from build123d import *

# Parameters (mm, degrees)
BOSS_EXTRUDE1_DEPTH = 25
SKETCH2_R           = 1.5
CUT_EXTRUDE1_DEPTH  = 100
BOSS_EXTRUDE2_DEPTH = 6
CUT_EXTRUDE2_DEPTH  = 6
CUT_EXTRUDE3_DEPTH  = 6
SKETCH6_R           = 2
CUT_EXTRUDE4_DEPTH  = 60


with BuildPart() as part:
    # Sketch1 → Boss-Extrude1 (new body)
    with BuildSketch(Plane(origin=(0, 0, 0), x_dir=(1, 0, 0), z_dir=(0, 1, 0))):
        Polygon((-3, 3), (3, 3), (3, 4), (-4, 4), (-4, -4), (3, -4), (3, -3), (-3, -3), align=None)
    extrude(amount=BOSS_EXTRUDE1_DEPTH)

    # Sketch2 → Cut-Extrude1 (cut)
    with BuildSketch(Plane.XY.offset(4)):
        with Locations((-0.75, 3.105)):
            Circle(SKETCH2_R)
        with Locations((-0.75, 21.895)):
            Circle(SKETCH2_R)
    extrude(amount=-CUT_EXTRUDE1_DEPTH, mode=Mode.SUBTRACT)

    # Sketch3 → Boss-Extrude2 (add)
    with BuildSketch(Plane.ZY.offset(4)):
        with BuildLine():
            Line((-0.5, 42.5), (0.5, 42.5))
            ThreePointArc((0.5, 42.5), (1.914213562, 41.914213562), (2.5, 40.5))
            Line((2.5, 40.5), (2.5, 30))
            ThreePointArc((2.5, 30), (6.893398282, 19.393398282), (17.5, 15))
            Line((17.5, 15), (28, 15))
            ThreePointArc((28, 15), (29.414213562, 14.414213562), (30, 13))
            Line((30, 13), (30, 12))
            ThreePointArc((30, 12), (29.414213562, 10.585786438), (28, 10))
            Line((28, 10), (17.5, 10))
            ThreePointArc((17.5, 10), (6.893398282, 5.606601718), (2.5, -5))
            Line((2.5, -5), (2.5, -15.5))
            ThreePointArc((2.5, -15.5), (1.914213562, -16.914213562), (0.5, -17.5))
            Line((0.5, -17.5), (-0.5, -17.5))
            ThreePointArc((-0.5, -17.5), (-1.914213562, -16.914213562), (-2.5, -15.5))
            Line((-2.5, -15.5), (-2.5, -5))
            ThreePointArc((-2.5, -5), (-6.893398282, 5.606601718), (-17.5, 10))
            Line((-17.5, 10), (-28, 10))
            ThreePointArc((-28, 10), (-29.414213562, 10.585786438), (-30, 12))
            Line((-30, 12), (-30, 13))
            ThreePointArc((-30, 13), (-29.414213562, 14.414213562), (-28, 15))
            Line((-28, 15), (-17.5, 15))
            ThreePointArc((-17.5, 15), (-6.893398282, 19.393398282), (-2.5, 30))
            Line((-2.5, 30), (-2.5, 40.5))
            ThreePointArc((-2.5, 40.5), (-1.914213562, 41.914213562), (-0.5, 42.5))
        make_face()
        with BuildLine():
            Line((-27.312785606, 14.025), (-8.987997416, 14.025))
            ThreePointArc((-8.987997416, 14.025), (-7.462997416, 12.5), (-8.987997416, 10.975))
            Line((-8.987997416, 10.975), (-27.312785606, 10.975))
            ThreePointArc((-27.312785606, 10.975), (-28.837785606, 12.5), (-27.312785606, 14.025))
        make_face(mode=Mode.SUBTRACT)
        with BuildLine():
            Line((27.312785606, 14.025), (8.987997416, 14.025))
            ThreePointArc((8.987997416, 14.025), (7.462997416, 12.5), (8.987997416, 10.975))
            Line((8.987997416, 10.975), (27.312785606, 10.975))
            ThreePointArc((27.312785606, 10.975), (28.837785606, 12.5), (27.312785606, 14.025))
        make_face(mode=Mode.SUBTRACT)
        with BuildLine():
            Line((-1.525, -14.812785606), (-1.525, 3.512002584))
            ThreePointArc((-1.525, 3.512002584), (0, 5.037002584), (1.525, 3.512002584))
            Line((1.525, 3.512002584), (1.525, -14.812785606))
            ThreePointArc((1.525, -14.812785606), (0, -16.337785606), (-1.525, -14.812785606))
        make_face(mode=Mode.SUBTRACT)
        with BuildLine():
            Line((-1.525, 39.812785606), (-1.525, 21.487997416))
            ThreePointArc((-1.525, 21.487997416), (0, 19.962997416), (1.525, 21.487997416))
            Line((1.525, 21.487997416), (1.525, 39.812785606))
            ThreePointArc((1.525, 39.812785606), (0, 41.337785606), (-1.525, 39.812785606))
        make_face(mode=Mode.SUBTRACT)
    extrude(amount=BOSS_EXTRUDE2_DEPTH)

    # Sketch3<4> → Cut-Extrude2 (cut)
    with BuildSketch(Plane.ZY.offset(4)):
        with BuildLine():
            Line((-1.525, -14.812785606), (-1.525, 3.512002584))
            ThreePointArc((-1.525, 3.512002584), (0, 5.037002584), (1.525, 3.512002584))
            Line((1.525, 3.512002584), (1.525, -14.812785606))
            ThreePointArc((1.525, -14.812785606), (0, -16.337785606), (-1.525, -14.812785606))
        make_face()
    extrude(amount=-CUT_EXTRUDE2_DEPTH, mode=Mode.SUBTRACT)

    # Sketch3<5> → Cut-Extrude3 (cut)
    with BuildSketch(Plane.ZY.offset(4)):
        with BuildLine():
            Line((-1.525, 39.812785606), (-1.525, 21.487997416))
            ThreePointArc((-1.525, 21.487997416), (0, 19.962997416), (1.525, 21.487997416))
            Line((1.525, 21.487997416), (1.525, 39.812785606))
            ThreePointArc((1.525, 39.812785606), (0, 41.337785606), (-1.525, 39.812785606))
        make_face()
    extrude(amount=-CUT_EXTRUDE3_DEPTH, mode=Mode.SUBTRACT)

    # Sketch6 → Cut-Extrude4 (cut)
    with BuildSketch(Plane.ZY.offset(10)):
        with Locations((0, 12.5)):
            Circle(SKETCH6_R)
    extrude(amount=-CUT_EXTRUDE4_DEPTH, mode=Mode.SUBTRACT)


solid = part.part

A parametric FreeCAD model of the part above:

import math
import FreeCAD as App
import Part
import Sketcher
Q = App.Units.Quantity


def add_polygon(sketch, points):
    """Adds a closed chain of lines whose ends are joined by coincident constraints."""
    first, n = sketch.GeometryCount, len(points)
    for a, b in zip(points, points[1:] + points[:1]):
        sketch.addGeometry(Part.LineSegment(App.Vector(*a, 0), App.Vector(*b, 0)), False)
    for i in range(n):
        sketch.addConstraint(Sketcher.Constraint("Coincident", first + i, 2, first + (i + 1) % n, 1))

doc = App.newDocument("Part")
params = doc.addObject("Spreadsheet::Sheet", "Params")
for row, (alias, value) in enumerate([
    ("sketch1_width", "6 mm"),
    ("sketch1_width2", "7 mm"),
    ("sketch1_height", "1 mm"),
    ("pad1_length", "25 mm"),
    ("sketch2_diameter", "3 mm"),
    ("pocket1_length", "100 mm"),
    ("sketch3_radius", "2 mm"),
    ("sketch3_radius2", "15 mm"),
    ("sketch3_width", "1 mm"),
    ("sketch3_width2", "10.5 mm"),
    ("pad2_length", "6 mm"),
    ("pocket2_length", "6 mm"),
    ("pocket3_length", "6 mm"),
    ("sketch6_diameter", "4 mm"),
    ("pocket4_length", "60 mm"),
], start=1):
    params.set(f"A{row}", alias)
    params.set(f"B{row}", "=" + value)
    params.setAlias(f"B{row}", alias)

body = doc.addObject("PartDesign::Body", "Body")

# Sketch on XZ plane
sketch1 = body.newObject("Sketcher::SketchObject", "Sketch")
sketch1.AttachmentSupport = (doc.getObject("XZ_Plane"), [""])
sketch1.MapMode = "FlatFace"
add_polygon(sketch1, [(-3, -3), (3, -3), (3, -4), (-4, -4), (-4, 4), (3, 4), (3, 3), (-3, 3)])  # lines 0-7
sketch1.addConstraint(Sketcher.Constraint("Horizontal", 0))
sketch1.addConstraint(Sketcher.Constraint("Vertical", 1))
sketch1.addConstraint(Sketcher.Constraint("Horizontal", 2))
sketch1.addConstraint(Sketcher.Constraint("Vertical", 3))
sketch1.addConstraint(Sketcher.Constraint("Horizontal", 4))
sketch1.addConstraint(Sketcher.Constraint("Vertical", 5))
sketch1.addConstraint(Sketcher.Constraint("Horizontal", 6))
sketch1.addConstraint(Sketcher.Constraint("Vertical", 7))
sketch1.addConstraint(Sketcher.Constraint("Symmetric", 0, 2, 6, 2, -1, 1))
sketch1.addConstraint(Sketcher.Constraint("Symmetric", 1, 2, 4, 2, -1))
sketch1.addConstraint(Sketcher.Constraint("Equal", 6, 7))
sketch1.addConstraint(Sketcher.Constraint("DistanceX", 0, 1, 0, 2, Q("6 mm")))
sketch1.addConstraint(Sketcher.Constraint("DistanceX", 2, 2, 2, 1, Q("7 mm")))
sketch1.addConstraint(Sketcher.Constraint("DistanceY", 1, 2, 1, 1, Q("1 mm")))
sketch1.setExpression("Constraints[19]", "Params.sketch1_width")
sketch1.setExpression("Constraints[20]", "Params.sketch1_width2")
sketch1.setExpression("Constraints[21]", "Params.sketch1_height")
pad1 = body.newObject("PartDesign::Pad", "Pad")
pad1.Profile = sketch1
pad1.setExpression("Length", "Params.pad1_length")
pad1.Reversed = True

# Sketch on XY plane
sketch2 = body.newObject("Sketcher::SketchObject", "Sketch001")
sketch2.AttachmentSupport = (doc.getObject("XY_Plane"), [""])
sketch2.MapMode = "FlatFace"
sketch2.AttachmentOffset = App.Placement(App.Vector(0, 0, 4), App.Rotation())
sketch2.addGeometry(Part.Circle(App.Vector(-0.8, 3.1, 0), App.Vector(0, 0, 1), 1.5), False)
sketch2.addGeometry(Part.Circle(App.Vector(-0.8, 21.9, 0), App.Vector(0, 0, 1), 1.5), False)
sketch2.addConstraint(Sketcher.Constraint("Equal", 0, 1))
sketch2.addConstraint(Sketcher.Constraint("Vertical", 0, 3, 1, 3))
sketch2.addConstraint(Sketcher.Constraint("Diameter", 0, Q("3 mm")))
sketch2.addConstraint(Sketcher.Constraint("DistanceX", 0, 3, -1, 1, Q("0.75 mm")))
sketch2.addConstraint(Sketcher.Constraint("DistanceY", 0, 3, 1, 3, Q("18.79 mm")))
sketch2.addConstraint(Sketcher.Constraint("DistanceY", -1, 1, 0, 3, Q("3.105 mm")))
sketch2.setExpression("Constraints[2]", "Params.sketch2_diameter")
pocket1 = body.newObject("PartDesign::Pocket", "Pocket")
pocket1.Profile = sketch2
pocket1.setExpression("Length", "Params.pocket1_length")

# Sketch on YZ plane
sketch3 = body.newObject("Sketcher::SketchObject", "Sketch002")
sketch3.AttachmentSupport = (doc.getObject("YZ_Plane"), [""])
sketch3.MapMode = "FlatFace"
sketch3.AttachmentOffset = App.Placement(App.Vector(0, 0, -4), App.Rotation())
sketch3.addGeometry(Part.LineSegment(App.Vector(42.5, 0.5, 0), App.Vector(42.5, -0.5, 0)), False)
sketch3.addGeometry(Part.ArcOfCircle(Part.Circle(App.Vector(40.5, -0.5, 0), App.Vector(0, 0, 1), 2), math.radians(-90), math.radians(0)), False)
sketch3.addGeometry(Part.LineSegment(App.Vector(40.5, -2.5, 0), App.Vector(30, -2.5, 0)), False)
sketch3.addGeometry(Part.ArcOfCircle(Part.Circle(App.Vector(30, -17.5, 0), App.Vector(0, 0, 1), 15), math.radians(90), math.radians(180)), False)
sketch3.addGeometry(Part.LineSegment(App.Vector(15, -17.5, 0), App.Vector(15, -28, 0)), False)
sketch3.addGeometry(Part.ArcOfCircle(Part.Circle(App.Vector(13, -28, 0), App.Vector(0, 0, 1), 2), math.radians(-90), math.radians(0)), False)
sketch3.addGeometry(Part.LineSegment(App.Vector(13, -30, 0), App.Vector(12, -30, 0)), False)
sketch3.addGeometry(Part.ArcOfCircle(Part.Circle(App.Vector(12, -28, 0), App.Vector(0, 0, 1), 2), math.radians(-180), math.radians(-90)), False)
sketch3.addGeometry(Part.LineSegment(App.Vector(10, -28, 0), App.Vector(10, -17.5, 0)), False)
sketch3.addGeometry(Part.ArcOfCircle(Part.Circle(App.Vector(-5, -17.5, 0), App.Vector(0, 0, 1), 15), math.radians(0), math.radians(90)), False)
sketch3.addGeometry(Part.LineSegment(App.Vector(-5, -2.5, 0), App.Vector(-15.5, -2.5, 0)), False)
sketch3.addGeometry(Part.ArcOfCircle(Part.Circle(App.Vector(-15.5, -0.5, 0), App.Vector(0, 0, 1), 2), math.radians(-180), math.radians(-90)), False)
sketch3.addGeometry(Part.LineSegment(App.Vector(-17.5, -0.5, 0), App.Vector(-17.5, 0.5, 0)), False)
sketch3.addGeometry(Part.ArcOfCircle(Part.Circle(App.Vector(-15.5, 0.5, 0), App.Vector(0, 0, 1), 2), math.radians(90), math.radians(180)), False)
sketch3.addGeometry(Part.LineSegment(App.Vector(-15.5, 2.5, 0), App.Vector(-5, 2.5, 0)), False)
sketch3.addGeometry(Part.ArcOfCircle(Part.Circle(App.Vector(-5, 17.5, 0), App.Vector(0, 0, 1), 15), math.radians(-90), math.radians(0)), False)
sketch3.addGeometry(Part.LineSegment(App.Vector(10, 17.5, 0), App.Vector(10, 28, 0)), False)
sketch3.addGeometry(Part.ArcOfCircle(Part.Circle(App.Vector(12, 28, 0), App.Vector(0, 0, 1), 2), math.radians(90), math.radians(180)), False)
sketch3.addGeometry(Part.LineSegment(App.Vector(12, 30, 0), App.Vector(13, 30, 0)), False)
sketch3.addGeometry(Part.ArcOfCircle(Part.Circle(App.Vector(13, 28, 0), App.Vector(0, 0, 1), 2), math.radians(0), math.radians(90)), False)
sketch3.addGeometry(Part.LineSegment(App.Vector(15, 28, 0), App.Vector(15, 17.5, 0)), False)
sketch3.addGeometry(Part.ArcOfCircle(Part.Circle(App.Vector(30, 17.5, 0), App.Vector(0, 0, 1), 15), math.radians(180), math.radians(270)), False)
sketch3.addGeometry(Part.LineSegment(App.Vector(30, 2.5, 0), App.Vector(40.5, 2.5, 0)), False)
sketch3.addGeometry(Part.ArcOfCircle(Part.Circle(App.Vector(40.5, 0.5, 0), App.Vector(0, 0, 1), 2), math.radians(0), math.radians(90)), False)
sketch3.addGeometry(Part.LineSegment(App.Vector(-14.8, -1.5, 0), App.Vector(3.5, -1.5, 0)), False)
sketch3.addGeometry(Part.ArcOfCircle(Part.Circle(App.Vector(3.5, 0, 0), App.Vector(0, 0, 1), 1.5), math.radians(-90), math.radians(90)), False)
sketch3.addGeometry(Part.LineSegment(App.Vector(3.5, 1.5, 0), App.Vector(-14.8, 1.5, 0)), False)
sketch3.addGeometry(Part.ArcOfCircle(Part.Circle(App.Vector(-14.8, 0, 0), App.Vector(0, 0, 1), 1.5), math.radians(90), math.radians(270)), False)
sketch3.addGeometry(Part.ArcOfCircle(Part.Circle(App.Vector(12.5, 27.3, 0), App.Vector(0, 0, 1), 1.5), math.radians(0), math.radians(180)), False)
sketch3.addGeometry(Part.LineSegment(App.Vector(11, 27.3, 0), App.Vector(11, 9, 0)), False)
sketch3.addGeometry(Part.ArcOfCircle(Part.Circle(App.Vector(12.5, 9, 0), App.Vector(0, 0, 1), 1.5), math.radians(180), math.radians(360)), False)
sketch3.addGeometry(Part.LineSegment(App.Vector(14, 9, 0), App.Vector(14, 27.3, 0)), False)
sketch3.addGeometry(Part.LineSegment(App.Vector(14, -27.3, 0), App.Vector(14, -9, 0)), False)
sketch3.addGeometry(Part.ArcOfCircle(Part.Circle(App.Vector(12.5, -9, 0), App.Vector(0, 0, 1), 1.5), math.radians(0), math.radians(180)), False)
sketch3.addGeometry(Part.LineSegment(App.Vector(11, -9, 0), App.Vector(11, -27.3, 0)), False)
sketch3.addGeometry(Part.ArcOfCircle(Part.Circle(App.Vector(12.5, -27.3, 0), App.Vector(0, 0, 1), 1.5), math.radians(180), math.radians(360)), False)
sketch3.addGeometry(Part.ArcOfCircle(Part.Circle(App.Vector(39.8, 0, 0), App.Vector(0, 0, 1), 1.5), math.radians(-90), math.radians(90)), False)
sketch3.addGeometry(Part.LineSegment(App.Vector(39.8, 1.5, 0), App.Vector(21.5, 1.5, 0)), False)
sketch3.addGeometry(Part.ArcOfCircle(Part.Circle(App.Vector(21.5, 0, 0), App.Vector(0, 0, 1), 1.5), math.radians(90), math.radians(270)), False)
sketch3.addGeometry(Part.LineSegment(App.Vector(21.5, -1.5, 0), App.Vector(39.8, -1.5, 0)), False)
sketch3.addConstraint(Sketcher.Constraint("Tangent", 0, 2, 1, 2))
sketch3.addConstraint(Sketcher.Constraint("Tangent", 1, 1, 2, 1))
sketch3.addConstraint(Sketcher.Constraint("Tangent", 2, 2, 3, 1))
sketch3.addConstraint(Sketcher.Constraint("Tangent", 3, 2, 4, 1))
sketch3.addConstraint(Sketcher.Constraint("Tangent", 4, 2, 5, 2))
sketch3.addConstraint(Sketcher.Constraint("Tangent", 5, 1, 6, 1))
sketch3.addConstraint(Sketcher.Constraint("Tangent", 6, 2, 7, 2))
sketch3.addConstraint(Sketcher.Constraint("Tangent", 7, 1, 8, 1))
sketch3.addConstraint(Sketcher.Constraint("Tangent", 8, 2, 9, 1))
sketch3.addConstraint(Sketcher.Constraint("Tangent", 9, 2, 10, 1))
sketch3.addConstraint(Sketcher.Constraint("Tangent", 10, 2, 11, 2))
sketch3.addConstraint(Sketcher.Constraint("Tangent", 11, 1, 12, 1))
sketch3.addConstraint(Sketcher.Constraint("Tangent", 12, 2, 13, 2))
sketch3.addConstraint(Sketcher.Constraint("Tangent", 13, 1, 14, 1))
sketch3.addConstraint(Sketcher.Constraint("Tangent", 14, 2, 15, 1))
sketch3.addConstraint(Sketcher.Constraint("Tangent", 15, 2, 16, 1))
sketch3.addConstraint(Sketcher.Constraint("Tangent", 16, 2, 17, 2))
sketch3.addConstraint(Sketcher.Constraint("Tangent", 17, 1, 18, 1))
sketch3.addConstraint(Sketcher.Constraint("Tangent", 18, 2, 19, 2))
sketch3.addConstraint(Sketcher.Constraint("Tangent", 19, 1, 20, 1))
sketch3.addConstraint(Sketcher.Constraint("Tangent", 20, 2, 21, 1))
sketch3.addConstraint(Sketcher.Constraint("Tangent", 21, 2, 22, 1))
sketch3.addConstraint(Sketcher.Constraint("Tangent", 22, 2, 23, 2))
sketch3.addConstraint(Sketcher.Constraint("Tangent", 23, 1, 0, 1))
sketch3.addConstraint(Sketcher.Constraint("Tangent", 24, 2, 25, 1))
sketch3.addConstraint(Sketcher.Constraint("Tangent", 25, 2, 26, 1))
sketch3.addConstraint(Sketcher.Constraint("Tangent", 26, 2, 27, 1))
sketch3.addConstraint(Sketcher.Constraint("Tangent", 27, 2, 24, 1))
sketch3.addConstraint(Sketcher.Constraint("Tangent", 28, 2, 29, 1))
sketch3.addConstraint(Sketcher.Constraint("Tangent", 29, 2, 30, 1))
sketch3.addConstraint(Sketcher.Constraint("Tangent", 30, 2, 31, 1))
sketch3.addConstraint(Sketcher.Constraint("Tangent", 31, 2, 28, 1))
sketch3.addConstraint(Sketcher.Constraint("Tangent", 32, 2, 33, 1))
sketch3.addConstraint(Sketcher.Constraint("Tangent", 33, 2, 34, 1))
sketch3.addConstraint(Sketcher.Constraint("Tangent", 34, 2, 35, 1))
sketch3.addConstraint(Sketcher.Constraint("Tangent", 35, 2, 32, 1))
sketch3.addConstraint(Sketcher.Constraint("Tangent", 36, 2, 37, 1))
sketch3.addConstraint(Sketcher.Constraint("Tangent", 37, 2, 38, 1))
sketch3.addConstraint(Sketcher.Constraint("Tangent", 38, 2, 39, 1))
sketch3.addConstraint(Sketcher.Constraint("Tangent", 39, 2, 36, 1))
sketch3.addConstraint(Sketcher.Constraint("Vertical", 0))
sketch3.addConstraint(Sketcher.Constraint("Horizontal", 2))
sketch3.addConstraint(Sketcher.Constraint("Vertical", 4))
sketch3.addConstraint(Sketcher.Constraint("Horizontal", 6))
sketch3.addConstraint(Sketcher.Constraint("Vertical", 8))
sketch3.addConstraint(Sketcher.Constraint("Horizontal", 10))
sketch3.addConstraint(Sketcher.Constraint("Vertical", 12))
sketch3.addConstraint(Sketcher.Constraint("Horizontal", 14))
sketch3.addConstraint(Sketcher.Constraint("Vertical", 16))
sketch3.addConstraint(Sketcher.Constraint("Horizontal", 18))
sketch3.addConstraint(Sketcher.Constraint("Vertical", 20))
sketch3.addConstraint(Sketcher.Constraint("Horizontal", 22))
sketch3.addConstraint(Sketcher.Constraint("Horizontal", 24))
sketch3.addConstraint(Sketcher.Constraint("Horizontal", 26))
sketch3.addConstraint(Sketcher.Constraint("Vertical", 29))
sketch3.addConstraint(Sketcher.Constraint("Vertical", 31))
sketch3.addConstraint(Sketcher.Constraint("Vertical", 32))
sketch3.addConstraint(Sketcher.Constraint("Vertical", 34))
sketch3.addConstraint(Sketcher.Constraint("Horizontal", 37))
sketch3.addConstraint(Sketcher.Constraint("Horizontal", 39))
sketch3.addConstraint(Sketcher.Constraint("Equal", 1, 5))
sketch3.addConstraint(Sketcher.Constraint("Equal", 5, 7))
sketch3.addConstraint(Sketcher.Constraint("Equal", 3, 9))
sketch3.addConstraint(Sketcher.Constraint("Equal", 7, 11))
sketch3.addConstraint(Sketcher.Constraint("Equal", 11, 13))
sketch3.addConstraint(Sketcher.Constraint("Equal", 9, 15))
sketch3.addConstraint(Sketcher.Constraint("Equal", 13, 17))
sketch3.addConstraint(Sketcher.Constraint("Equal", 17, 19))
sketch3.addConstraint(Sketcher.Constraint("Equal", 15, 21))
sketch3.addConstraint(Sketcher.Constraint("Equal", 19, 23))
sketch3.addConstraint(Sketcher.Constraint("Equal", 27, 28))
sketch3.addConstraint(Sketcher.Constraint("Equal", 30, 33))
sketch3.addConstraint(Sketcher.Constraint("Equal", 35, 36))
sketch3.addConstraint(Sketcher.Constraint("Symmetric", 9, 3, 15, 3, -1))
sketch3.addConstraint(Sketcher.Constraint("Symmetric", 5, 3, 19, 3, -1))
sketch3.addConstraint(Sketcher.Constraint("Symmetric", 30, 3, 33, 3, -1))
sketch3.addConstraint(Sketcher.Constraint("PointOnObject", 25, 3, -1))
sketch3.addConstraint(Sketcher.Constraint("PointOnObject", 36, 3, -1))
sketch3.addConstraint(Sketcher.Constraint("Horizontal", 3, 3, 9, 3))
sketch3.addConstraint(Sketcher.Constraint("Horizontal", 15, 3, 21, 3))
sketch3.addConstraint(Sketcher.Constraint("Equal", 2, 10))
sketch3.addConstraint(Sketcher.Constraint("Equal", 26, 37))
sketch3.addConstraint(Sketcher.Constraint("Equal", 18, 0))
sketch3.addConstraint(Sketcher.Constraint("Equal", 22, 4))
sketch3.addConstraint(Sketcher.Constraint("Equal", 39, 29))
sketch3.addConstraint(Sketcher.Constraint("Equal", 31, 32))
sketch3.addConstraint(Sketcher.Constraint("Radius", 1, Q("2 mm")))
sketch3.addConstraint(Sketcher.Constraint("Radius", 3, Q("15 mm")))
sketch3.addConstraint(Sketcher.Constraint("DistanceX", 6, 2, 6, 1, Q("1 mm")))
sketch3.addConstraint(Sketcher.Constraint("DistanceX", 2, 2, 2, 1, Q("10.5 mm")))
sketch3.addConstraint(Sketcher.Constraint("DistanceX", -1, 1, 3, 3, Q("30 mm")))
sketch3.addConstraint(Sketcher.Constraint("Radius", 25, Q("1.525 mm")))
sketch3.addConstraint(Sketcher.Constraint("DistanceX", -1, 1, 28, 3, Q("12.5 mm")))
sketch3.addConstraint(Sketcher.Constraint("DistanceX", 24, 1, 24, 2, Q("18.324788 mm")))
sketch3.addConstraint(Sketcher.Constraint("DistanceX", -1, 1, 25, 3, Q("3.512003 mm")))
sketch3.addConstraint(Sketcher.Constraint("DistanceY", -1, 1, 28, 3, Q("27.312786 mm")))
sketch3.addConstraint(Sketcher.Constraint("DistanceX", -1, 1, 36, 3, Q("39.812786 mm")))
sketch3.setExpression("Constraints[86]", "Params.sketch3_radius")
sketch3.setExpression("Constraints[87]", "Params.sketch3_radius2")
sketch3.setExpression("Constraints[88]", "Params.sketch3_width")
sketch3.setExpression("Constraints[89]", "Params.sketch3_width2")
pad2 = body.newObject("PartDesign::Pad", "Pad001")
pad2.Profile = sketch3
pad2.setExpression("Length", "Params.pad2_length")
pad2.Reversed = True

# Sketch on YZ plane
sketch4 = body.newObject("Sketcher::SketchObject", "Sketch003")
sketch4.AttachmentSupport = (doc.getObject("YZ_Plane"), [""])
sketch4.MapMode = "FlatFace"
sketch4.AttachmentOffset = App.Placement(App.Vector(0, 0, -4), App.Rotation())
sketch4.addGeometry(Part.LineSegment(App.Vector(3.5, -1.5, 0), App.Vector(-14.8, -1.5, 0)), False)
sketch4.addGeometry(Part.ArcOfCircle(Part.Circle(App.Vector(-14.8, 0, 0), App.Vector(0, 0, 1), 1.5), math.radians(90), math.radians(270)), False)
sketch4.addGeometry(Part.LineSegment(App.Vector(-14.8, 1.5, 0), App.Vector(3.5, 1.5, 0)), False)
sketch4.addGeometry(Part.ArcOfCircle(Part.Circle(App.Vector(3.5, 0, 0), App.Vector(0, 0, 1), 1.5), math.radians(-90), math.radians(90)), False)
sketch4.addConstraint(Sketcher.Constraint("Tangent", 0, 2, 1, 2))
sketch4.addConstraint(Sketcher.Constraint("Tangent", 1, 1, 2, 1))
sketch4.addConstraint(Sketcher.Constraint("Tangent", 2, 2, 3, 2))
sketch4.addConstraint(Sketcher.Constraint("Tangent", 3, 1, 0, 1))
sketch4.addConstraint(Sketcher.Constraint("Horizontal", 0))
sketch4.addConstraint(Sketcher.Constraint("Horizontal", 2))
sketch4.addConstraint(Sketcher.Constraint("PointOnObject", 1, 3, -1))
sketch4.addConstraint(Sketcher.Constraint("Radius", 1, Q("1.525 mm")))
sketch4.addConstraint(Sketcher.Constraint("DistanceX", 0, 2, 0, 1, Q("18.324788 mm")))
sketch4.addConstraint(Sketcher.Constraint("DistanceX", 1, 3, -1, 1, Q("14.812786 mm")))
pocket2 = body.newObject("PartDesign::Pocket", "Pocket001")
pocket2.Profile = sketch4
pocket2.setExpression("Length", "Params.pocket2_length")
pocket2.Reversed = True

# Sketch on YZ plane
sketch5 = body.newObject("Sketcher::SketchObject", "Sketch004")
sketch5.AttachmentSupport = (doc.getObject("YZ_Plane"), [""])
sketch5.MapMode = "FlatFace"
sketch5.AttachmentOffset = App.Placement(App.Vector(0, 0, -4), App.Rotation())
sketch5.addGeometry(Part.LineSegment(App.Vector(39.8, -1.5, 0), App.Vector(21.5, -1.5, 0)), False)
sketch5.addGeometry(Part.ArcOfCircle(Part.Circle(App.Vector(21.5, 0, 0), App.Vector(0, 0, 1), 1.5), math.radians(90), math.radians(270)), False)
sketch5.addGeometry(Part.LineSegment(App.Vector(21.5, 1.5, 0), App.Vector(39.8, 1.5, 0)), False)
sketch5.addGeometry(Part.ArcOfCircle(Part.Circle(App.Vector(39.8, 0, 0), App.Vector(0, 0, 1), 1.5), math.radians(-90), math.radians(90)), False)
sketch5.addConstraint(Sketcher.Constraint("Tangent", 0, 2, 1, 2))
sketch5.addConstraint(Sketcher.Constraint("Tangent", 1, 1, 2, 1))
sketch5.addConstraint(Sketcher.Constraint("Tangent", 2, 2, 3, 2))
sketch5.addConstraint(Sketcher.Constraint("Tangent", 3, 1, 0, 1))
sketch5.addConstraint(Sketcher.Constraint("Horizontal", 0))
sketch5.addConstraint(Sketcher.Constraint("Horizontal", 2))
sketch5.addConstraint(Sketcher.Constraint("PointOnObject", 1, 3, -1))
sketch5.addConstraint(Sketcher.Constraint("Radius", 1, Q("1.525 mm")))
sketch5.addConstraint(Sketcher.Constraint("DistanceX", 0, 2, 0, 1, Q("18.324788 mm")))
sketch5.addConstraint(Sketcher.Constraint("DistanceX", -1, 1, 1, 3, Q("21.487997 mm")))
pocket3 = body.newObject("PartDesign::Pocket", "Pocket002")
pocket3.Profile = sketch5
pocket3.setExpression("Length", "Params.pocket3_length")
pocket3.Reversed = True

# Sketch on YZ plane
sketch6 = body.newObject("Sketcher::SketchObject", "Sketch005")
sketch6.AttachmentSupport = (doc.getObject("YZ_Plane"), [""])
sketch6.MapMode = "FlatFace"
sketch6.AttachmentOffset = App.Placement(App.Vector(0, 0, -10), App.Rotation())
sketch6.addGeometry(Part.Circle(App.Vector(12.5, 0, 0), App.Vector(0, 0, 1), 2), False)
sketch6.addConstraint(Sketcher.Constraint("PointOnObject", 0, 3, -1))
sketch6.addConstraint(Sketcher.Constraint("Diameter", 0, Q("4 mm")))
sketch6.addConstraint(Sketcher.Constraint("DistanceX", -1, 1, 0, 3, Q("12.5 mm")))
sketch6.setExpression("Constraints[1]", "Params.sketch6_diameter")
pocket4 = body.newObject("PartDesign::Pocket", "Pocket003")
pocket4.Profile = sketch6
pocket4.setExpression("Length", "Params.pocket4_length")
pocket4.Reversed = True

doc.recompute()
